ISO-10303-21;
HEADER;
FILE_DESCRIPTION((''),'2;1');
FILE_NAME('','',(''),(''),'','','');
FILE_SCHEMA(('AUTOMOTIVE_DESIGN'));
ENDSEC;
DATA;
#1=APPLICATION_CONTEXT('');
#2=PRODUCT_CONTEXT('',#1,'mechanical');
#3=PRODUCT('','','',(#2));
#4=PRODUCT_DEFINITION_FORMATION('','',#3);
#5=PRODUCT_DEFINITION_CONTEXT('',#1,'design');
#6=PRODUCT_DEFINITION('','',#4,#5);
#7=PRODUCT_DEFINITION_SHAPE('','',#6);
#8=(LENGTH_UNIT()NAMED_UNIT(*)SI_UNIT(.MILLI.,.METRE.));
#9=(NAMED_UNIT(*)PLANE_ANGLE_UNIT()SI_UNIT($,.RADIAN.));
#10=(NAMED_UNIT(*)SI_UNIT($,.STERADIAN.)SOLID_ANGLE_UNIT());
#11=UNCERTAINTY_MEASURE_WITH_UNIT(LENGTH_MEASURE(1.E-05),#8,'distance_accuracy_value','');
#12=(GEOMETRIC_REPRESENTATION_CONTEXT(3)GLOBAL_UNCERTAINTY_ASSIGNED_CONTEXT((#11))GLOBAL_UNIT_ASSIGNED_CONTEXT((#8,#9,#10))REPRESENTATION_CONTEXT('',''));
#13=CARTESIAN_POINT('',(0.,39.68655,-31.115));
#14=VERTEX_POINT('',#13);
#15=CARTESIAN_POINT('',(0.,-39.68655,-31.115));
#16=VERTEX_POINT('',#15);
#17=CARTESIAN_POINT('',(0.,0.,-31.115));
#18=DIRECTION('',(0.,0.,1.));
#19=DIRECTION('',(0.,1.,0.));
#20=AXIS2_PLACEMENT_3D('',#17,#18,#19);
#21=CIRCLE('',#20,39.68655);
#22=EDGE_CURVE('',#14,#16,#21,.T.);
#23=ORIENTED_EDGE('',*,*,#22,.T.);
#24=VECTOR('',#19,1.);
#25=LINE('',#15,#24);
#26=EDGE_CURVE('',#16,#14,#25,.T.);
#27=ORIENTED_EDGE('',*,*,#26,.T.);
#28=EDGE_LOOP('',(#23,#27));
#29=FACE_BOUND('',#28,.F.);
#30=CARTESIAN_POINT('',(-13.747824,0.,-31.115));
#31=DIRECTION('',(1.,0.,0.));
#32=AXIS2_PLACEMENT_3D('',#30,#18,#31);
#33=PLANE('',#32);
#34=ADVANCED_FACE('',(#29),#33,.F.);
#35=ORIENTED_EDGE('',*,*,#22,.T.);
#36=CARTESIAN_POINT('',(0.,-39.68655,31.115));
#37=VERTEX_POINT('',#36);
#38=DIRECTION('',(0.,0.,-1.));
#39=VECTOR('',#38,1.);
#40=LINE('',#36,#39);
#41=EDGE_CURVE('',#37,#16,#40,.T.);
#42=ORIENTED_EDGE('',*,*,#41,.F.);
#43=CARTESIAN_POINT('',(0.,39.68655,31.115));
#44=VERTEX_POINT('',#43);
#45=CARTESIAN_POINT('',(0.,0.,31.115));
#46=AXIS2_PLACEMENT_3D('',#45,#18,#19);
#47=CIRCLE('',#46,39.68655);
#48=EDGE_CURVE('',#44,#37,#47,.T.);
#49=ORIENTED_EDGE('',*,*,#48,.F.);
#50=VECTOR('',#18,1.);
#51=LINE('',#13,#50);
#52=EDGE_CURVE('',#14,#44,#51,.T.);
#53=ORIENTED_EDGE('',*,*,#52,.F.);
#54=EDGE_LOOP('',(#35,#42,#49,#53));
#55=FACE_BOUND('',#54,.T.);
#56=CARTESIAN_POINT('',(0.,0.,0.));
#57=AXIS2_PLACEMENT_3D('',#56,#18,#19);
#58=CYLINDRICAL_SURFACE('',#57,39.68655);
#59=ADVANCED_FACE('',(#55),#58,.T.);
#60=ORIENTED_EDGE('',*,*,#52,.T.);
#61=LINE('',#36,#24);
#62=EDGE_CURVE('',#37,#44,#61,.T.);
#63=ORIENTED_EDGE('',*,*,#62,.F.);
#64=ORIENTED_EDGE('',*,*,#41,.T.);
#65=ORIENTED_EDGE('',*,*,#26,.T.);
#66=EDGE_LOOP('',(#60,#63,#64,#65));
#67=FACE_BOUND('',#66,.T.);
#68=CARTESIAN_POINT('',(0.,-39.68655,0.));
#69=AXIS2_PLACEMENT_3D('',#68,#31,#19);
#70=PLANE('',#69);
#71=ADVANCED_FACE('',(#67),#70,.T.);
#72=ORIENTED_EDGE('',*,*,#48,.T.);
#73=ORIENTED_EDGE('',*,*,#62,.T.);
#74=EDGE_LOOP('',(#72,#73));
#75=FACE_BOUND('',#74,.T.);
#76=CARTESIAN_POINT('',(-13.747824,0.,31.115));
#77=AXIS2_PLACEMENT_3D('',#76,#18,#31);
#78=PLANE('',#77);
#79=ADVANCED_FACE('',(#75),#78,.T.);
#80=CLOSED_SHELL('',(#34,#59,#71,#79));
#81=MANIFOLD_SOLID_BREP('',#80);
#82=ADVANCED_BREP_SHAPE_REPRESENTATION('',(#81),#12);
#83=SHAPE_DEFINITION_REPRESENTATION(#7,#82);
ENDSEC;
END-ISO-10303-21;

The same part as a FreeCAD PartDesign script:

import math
import FreeCAD as App
import Part
import Sketcher

V = App.Vector
Q = App.Units.Quantity

doc = App.newDocument("Part")
body = doc.addObject("PartDesign::Body", "Body")

sketch1 = body.newObject("Sketcher::SketchObject", "Sketch")
sketch1.AttachmentSupport = (doc.getObject("XY_Plane"), [""])
sketch1.MapMode = "FlatFace"
sketch1.addGeometry(Part.LineSegment(V(0, -39.68655, 0), V(0, 39.68655, 0)), False)
sketch1.addGeometry(Part.ArcOfCircle(Part.Circle(V(0, 0, 0), V(0, 0, 1), 39.68655), math.radians(90), math.radians(270)), False)
sketch1.addConstraint(Sketcher.Constraint("Coincident", 0, 1, 1, 2))
sketch1.addConstraint(Sketcher.Constraint("Coincident", 1, 1, 0, 2))
sketch1.addConstraint(Sketcher.Constraint("Vertical", 0))
sketch1.addConstraint(Sketcher.Constraint("Coincident", 1, 3, -1, 1))
sketch1.addConstraint(Sketcher.Constraint("PointOnObject", 0, 1, -2))
sketch1.addConstraint(Sketcher.Constraint("Radius", 1, 39.68655))
pad1 = body.newObject("PartDesign::Pad", "Pad")
pad1.Profile = sketch1
pad1.Length = Q("2.45 in")
pad1.Midplane = True

doc.recompute()
